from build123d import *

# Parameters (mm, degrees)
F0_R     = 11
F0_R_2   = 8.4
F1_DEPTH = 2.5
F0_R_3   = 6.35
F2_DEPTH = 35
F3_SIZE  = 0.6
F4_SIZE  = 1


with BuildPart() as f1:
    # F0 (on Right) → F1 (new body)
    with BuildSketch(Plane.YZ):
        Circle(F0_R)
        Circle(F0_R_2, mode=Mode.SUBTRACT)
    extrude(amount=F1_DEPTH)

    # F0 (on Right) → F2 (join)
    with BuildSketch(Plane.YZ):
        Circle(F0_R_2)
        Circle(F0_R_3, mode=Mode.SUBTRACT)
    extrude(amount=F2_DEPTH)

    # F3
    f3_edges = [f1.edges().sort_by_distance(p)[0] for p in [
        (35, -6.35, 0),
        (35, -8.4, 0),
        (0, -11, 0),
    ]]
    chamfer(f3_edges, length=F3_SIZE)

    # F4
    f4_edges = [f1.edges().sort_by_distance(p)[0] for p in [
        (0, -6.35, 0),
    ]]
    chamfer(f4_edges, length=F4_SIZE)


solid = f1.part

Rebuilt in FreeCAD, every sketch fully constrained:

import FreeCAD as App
import Part
import Sketcher

V = App.Vector
Q = App.Units.Quantity


def edges_at(feature, points):
    """Names of the edges that pass closest to the given points."""
    edges = feature.Shape.Edges
    near = lambda p: min(range(len(edges)), key=lambda i: edges[i].distToShape(Part.Vertex(*p))[0])
    return sorted({f"Edge{near(p) + 1}" for p in points})

doc = App.newDocument("Part")
body = doc.addObject("PartDesign::Body", "Body")

# Sketch on YZ plane
sketch1 = body.newObject("Sketcher::SketchObject", "Sketch")
sketch1.AttachmentSupport = (doc.getObject("YZ_Plane"), [""])
sketch1.MapMode = "FlatFace"
sketch1.addGeometry(Part.Circle(V(0, 0, 0), V(0, 0, 1), 11), False)
sketch1.addGeometry(Part.Circle(V(0, 0, 0), V(0, 0, 1), 8.4), False)
sketch1.addConstraint(Sketcher.Constraint("Coincident", 0, 3, -1, 1))
sketch1.addConstraint(Sketcher.Constraint("Coincident", 1, 3, -1, 1))
sketch1.addConstraint(Sketcher.Constraint("Diameter", 0, Q("22 mm")))
sketch1.addConstraint(Sketcher.Constraint("Diameter", 1, Q("16.8 mm")))
pad1 = body.newObject("PartDesign::Pad", "Pad")
pad1.Profile = sketch1
pad1.Length = 2.5

# Sketch on YZ plane
sketch2 = body.newObject("Sketcher::SketchObject", "Sketch001")
sketch2.AttachmentSupport = (doc.getObject("YZ_Plane"), [""])
sketch2.MapMode = "FlatFace"
sketch2.addGeometry(Part.Circle(V(0, 0, 0), V(0, 0, 1), 8.4), False)
sketch2.addGeometry(Part.Circle(V(0, 0, 0), V(0, 0, 1), 6.35), False)
sketch2.addConstraint(Sketcher.Constraint("Coincident", 0, 3, -1, 1))
sketch2.addConstraint(Sketcher.Constraint("Coincident", 1, 3, -1, 1))
sketch2.addConstraint(Sketcher.Constraint("Diameter", 0, Q("16.8 mm")))
sketch2.addConstraint(Sketcher.Constraint("Diameter", 1, Q("12.7 mm")))
pad2 = body.newObject("PartDesign::Pad", "Pad001")
pad2.Profile = sketch2
pad2.Length = 35
doc.recompute()

chamfer = body.newObject("PartDesign::Chamfer", "Chamfer")
chamfer.Base = (pad2, edges_at(pad2, [(35, -6.35, 0), (35, -8.4, 0), (0, -11, 0)]))
chamfer.Size = 0.6
doc.recompute()

chamfer2 = body.newObject("PartDesign::Chamfer", "Chamfer001")
chamfer2.Base = (chamfer, edges_at(chamfer, [(0, -6.35, 0)]))
chamfer2.Size = 1

doc.recompute()
